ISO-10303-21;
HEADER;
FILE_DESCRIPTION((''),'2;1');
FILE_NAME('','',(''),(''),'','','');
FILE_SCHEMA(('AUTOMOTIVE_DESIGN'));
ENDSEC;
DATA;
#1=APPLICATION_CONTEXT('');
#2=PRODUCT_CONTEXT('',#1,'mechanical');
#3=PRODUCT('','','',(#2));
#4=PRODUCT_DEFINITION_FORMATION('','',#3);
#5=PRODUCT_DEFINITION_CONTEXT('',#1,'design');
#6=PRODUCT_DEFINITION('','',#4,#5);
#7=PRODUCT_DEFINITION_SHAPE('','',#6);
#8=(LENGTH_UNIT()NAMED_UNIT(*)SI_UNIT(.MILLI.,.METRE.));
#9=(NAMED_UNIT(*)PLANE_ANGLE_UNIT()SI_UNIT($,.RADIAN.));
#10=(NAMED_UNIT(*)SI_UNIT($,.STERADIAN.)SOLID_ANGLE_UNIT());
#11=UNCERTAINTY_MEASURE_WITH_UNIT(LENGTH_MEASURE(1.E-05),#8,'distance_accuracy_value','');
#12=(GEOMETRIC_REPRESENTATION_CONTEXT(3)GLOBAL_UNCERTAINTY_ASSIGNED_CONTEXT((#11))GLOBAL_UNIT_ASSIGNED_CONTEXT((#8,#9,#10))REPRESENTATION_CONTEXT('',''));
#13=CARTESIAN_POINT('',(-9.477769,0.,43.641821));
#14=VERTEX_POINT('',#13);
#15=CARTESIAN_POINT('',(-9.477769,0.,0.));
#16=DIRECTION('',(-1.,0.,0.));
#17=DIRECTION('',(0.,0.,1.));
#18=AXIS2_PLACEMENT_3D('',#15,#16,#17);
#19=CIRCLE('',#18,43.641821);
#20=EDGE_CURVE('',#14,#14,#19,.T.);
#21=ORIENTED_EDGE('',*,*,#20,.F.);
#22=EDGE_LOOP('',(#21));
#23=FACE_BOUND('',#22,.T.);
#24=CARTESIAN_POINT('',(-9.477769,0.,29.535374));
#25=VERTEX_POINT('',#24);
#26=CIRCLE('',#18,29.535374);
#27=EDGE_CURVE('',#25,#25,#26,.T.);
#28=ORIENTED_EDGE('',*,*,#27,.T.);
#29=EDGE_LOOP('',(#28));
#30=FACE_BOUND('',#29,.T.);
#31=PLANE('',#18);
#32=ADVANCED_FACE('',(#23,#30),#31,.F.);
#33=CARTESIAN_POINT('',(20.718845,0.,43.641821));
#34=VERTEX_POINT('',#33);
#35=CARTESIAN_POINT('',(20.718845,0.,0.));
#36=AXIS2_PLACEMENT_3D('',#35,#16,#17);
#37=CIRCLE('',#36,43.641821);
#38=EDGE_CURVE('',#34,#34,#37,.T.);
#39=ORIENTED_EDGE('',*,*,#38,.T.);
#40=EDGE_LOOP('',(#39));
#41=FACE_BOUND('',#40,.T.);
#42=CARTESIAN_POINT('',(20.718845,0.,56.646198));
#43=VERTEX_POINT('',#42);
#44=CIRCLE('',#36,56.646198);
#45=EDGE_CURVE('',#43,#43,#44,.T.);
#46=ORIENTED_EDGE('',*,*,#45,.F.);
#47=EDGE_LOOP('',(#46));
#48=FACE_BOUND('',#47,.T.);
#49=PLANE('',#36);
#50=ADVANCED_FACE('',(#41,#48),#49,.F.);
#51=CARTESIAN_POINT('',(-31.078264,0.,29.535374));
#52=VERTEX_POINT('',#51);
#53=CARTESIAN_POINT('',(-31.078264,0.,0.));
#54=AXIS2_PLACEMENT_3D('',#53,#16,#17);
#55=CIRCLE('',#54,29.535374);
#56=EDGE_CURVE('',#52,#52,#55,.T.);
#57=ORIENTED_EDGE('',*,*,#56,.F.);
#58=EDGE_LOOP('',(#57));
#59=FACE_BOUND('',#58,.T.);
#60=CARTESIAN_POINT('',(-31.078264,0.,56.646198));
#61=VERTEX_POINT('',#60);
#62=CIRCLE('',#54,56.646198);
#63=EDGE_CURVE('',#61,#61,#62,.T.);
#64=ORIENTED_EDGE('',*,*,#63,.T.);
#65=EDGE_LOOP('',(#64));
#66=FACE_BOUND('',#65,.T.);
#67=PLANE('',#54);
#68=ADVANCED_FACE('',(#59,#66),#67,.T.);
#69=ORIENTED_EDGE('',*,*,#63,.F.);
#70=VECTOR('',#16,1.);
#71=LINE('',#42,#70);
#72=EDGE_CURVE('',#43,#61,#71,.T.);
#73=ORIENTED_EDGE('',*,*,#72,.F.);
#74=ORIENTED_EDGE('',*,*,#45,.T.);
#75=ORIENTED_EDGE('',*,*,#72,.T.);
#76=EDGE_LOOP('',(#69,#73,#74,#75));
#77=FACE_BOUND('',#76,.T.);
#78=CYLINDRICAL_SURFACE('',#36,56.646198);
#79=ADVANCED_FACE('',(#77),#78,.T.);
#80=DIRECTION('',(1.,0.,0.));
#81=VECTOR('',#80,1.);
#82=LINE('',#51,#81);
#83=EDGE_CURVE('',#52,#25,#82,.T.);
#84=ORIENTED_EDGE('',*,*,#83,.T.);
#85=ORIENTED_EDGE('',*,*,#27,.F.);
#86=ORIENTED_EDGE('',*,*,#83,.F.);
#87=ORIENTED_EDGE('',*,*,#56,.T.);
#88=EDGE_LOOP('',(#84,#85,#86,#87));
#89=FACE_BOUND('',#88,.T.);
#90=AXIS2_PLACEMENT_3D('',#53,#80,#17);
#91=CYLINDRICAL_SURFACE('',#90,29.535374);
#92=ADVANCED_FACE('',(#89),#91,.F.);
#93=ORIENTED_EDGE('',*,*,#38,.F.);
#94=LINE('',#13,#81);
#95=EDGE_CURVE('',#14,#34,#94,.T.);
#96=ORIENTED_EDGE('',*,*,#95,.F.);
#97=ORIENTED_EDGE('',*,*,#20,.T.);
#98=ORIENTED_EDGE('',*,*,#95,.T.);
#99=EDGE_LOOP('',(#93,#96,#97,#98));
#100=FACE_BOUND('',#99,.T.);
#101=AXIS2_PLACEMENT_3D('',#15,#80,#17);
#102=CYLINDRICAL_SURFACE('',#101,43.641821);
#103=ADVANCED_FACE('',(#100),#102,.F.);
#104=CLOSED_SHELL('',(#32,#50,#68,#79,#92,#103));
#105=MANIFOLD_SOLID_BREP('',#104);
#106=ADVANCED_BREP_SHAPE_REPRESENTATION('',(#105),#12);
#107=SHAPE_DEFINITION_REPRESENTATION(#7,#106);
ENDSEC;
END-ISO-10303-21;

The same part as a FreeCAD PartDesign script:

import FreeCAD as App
import Part
import Sketcher

V = App.Vector


def add_polygon(sketch, points):
    """Adds a closed chain of lines whose ends are joined by coincident constraints."""
    first, n = sketch.GeometryCount, len(points)
    for a, b in zip(points, points[1:] + points[:1]):
        sketch.addGeometry(Part.LineSegment(App.Vector(*a, 0), App.Vector(*b, 0)), False)
    for i in range(n):
        sketch.addConstraint(Sketcher.Constraint("Coincident", first + i, 2, first + (i + 1) % n, 1))

doc = App.newDocument("Part")
body = doc.addObject("PartDesign::Body", "Body")

# Sketch on XZ plane
sketch1 = body.newObject("Sketcher::SketchObject", "Sketch")
sketch1.AttachmentSupport = (doc.getObject("XZ_Plane"), [""])
sketch1.MapMode = "FlatFace"
add_polygon(sketch1, [(-31, 30), (-9, 30), (-9, 44), (21, 44), (21, 57), (-31, 57)])  # lines 0-5
sketch1.addConstraint([
    Sketcher.Constraint("Horizontal", 0),
    Sketcher.Constraint("Vertical", 1),
    Sketcher.Constraint("Horizontal", 2),
    Sketcher.Constraint("Vertical", 3),
    Sketcher.Constraint("Horizontal", 4),
    Sketcher.Constraint("Vertical", 5),
    Sketcher.Constraint("DistanceX", 4, 2, 4, 1, 51.797109),
    Sketcher.Constraint("DistanceX", 0, 1, 0, 2, 21.600495),
    Sketcher.Constraint("DistanceY", 1, 1, 1, 2, 14.106447),
    Sketcher.Constraint("DistanceY", 3, 1, 3, 2, 13.004377),
    Sketcher.Constraint("DistanceX", 0, 2, -1, 1, 9.477769),
    Sketcher.Constraint("DistanceY", -1, 1, 1, 2, 43.641821),
])
revolution = body.newObject("PartDesign::Revolution", "Revolution")
revolution.Profile = sketch1
revolution.ReferenceAxis = (sketch1, ["H_Axis"])
revolution.Angle = 360

doc.recompute()
